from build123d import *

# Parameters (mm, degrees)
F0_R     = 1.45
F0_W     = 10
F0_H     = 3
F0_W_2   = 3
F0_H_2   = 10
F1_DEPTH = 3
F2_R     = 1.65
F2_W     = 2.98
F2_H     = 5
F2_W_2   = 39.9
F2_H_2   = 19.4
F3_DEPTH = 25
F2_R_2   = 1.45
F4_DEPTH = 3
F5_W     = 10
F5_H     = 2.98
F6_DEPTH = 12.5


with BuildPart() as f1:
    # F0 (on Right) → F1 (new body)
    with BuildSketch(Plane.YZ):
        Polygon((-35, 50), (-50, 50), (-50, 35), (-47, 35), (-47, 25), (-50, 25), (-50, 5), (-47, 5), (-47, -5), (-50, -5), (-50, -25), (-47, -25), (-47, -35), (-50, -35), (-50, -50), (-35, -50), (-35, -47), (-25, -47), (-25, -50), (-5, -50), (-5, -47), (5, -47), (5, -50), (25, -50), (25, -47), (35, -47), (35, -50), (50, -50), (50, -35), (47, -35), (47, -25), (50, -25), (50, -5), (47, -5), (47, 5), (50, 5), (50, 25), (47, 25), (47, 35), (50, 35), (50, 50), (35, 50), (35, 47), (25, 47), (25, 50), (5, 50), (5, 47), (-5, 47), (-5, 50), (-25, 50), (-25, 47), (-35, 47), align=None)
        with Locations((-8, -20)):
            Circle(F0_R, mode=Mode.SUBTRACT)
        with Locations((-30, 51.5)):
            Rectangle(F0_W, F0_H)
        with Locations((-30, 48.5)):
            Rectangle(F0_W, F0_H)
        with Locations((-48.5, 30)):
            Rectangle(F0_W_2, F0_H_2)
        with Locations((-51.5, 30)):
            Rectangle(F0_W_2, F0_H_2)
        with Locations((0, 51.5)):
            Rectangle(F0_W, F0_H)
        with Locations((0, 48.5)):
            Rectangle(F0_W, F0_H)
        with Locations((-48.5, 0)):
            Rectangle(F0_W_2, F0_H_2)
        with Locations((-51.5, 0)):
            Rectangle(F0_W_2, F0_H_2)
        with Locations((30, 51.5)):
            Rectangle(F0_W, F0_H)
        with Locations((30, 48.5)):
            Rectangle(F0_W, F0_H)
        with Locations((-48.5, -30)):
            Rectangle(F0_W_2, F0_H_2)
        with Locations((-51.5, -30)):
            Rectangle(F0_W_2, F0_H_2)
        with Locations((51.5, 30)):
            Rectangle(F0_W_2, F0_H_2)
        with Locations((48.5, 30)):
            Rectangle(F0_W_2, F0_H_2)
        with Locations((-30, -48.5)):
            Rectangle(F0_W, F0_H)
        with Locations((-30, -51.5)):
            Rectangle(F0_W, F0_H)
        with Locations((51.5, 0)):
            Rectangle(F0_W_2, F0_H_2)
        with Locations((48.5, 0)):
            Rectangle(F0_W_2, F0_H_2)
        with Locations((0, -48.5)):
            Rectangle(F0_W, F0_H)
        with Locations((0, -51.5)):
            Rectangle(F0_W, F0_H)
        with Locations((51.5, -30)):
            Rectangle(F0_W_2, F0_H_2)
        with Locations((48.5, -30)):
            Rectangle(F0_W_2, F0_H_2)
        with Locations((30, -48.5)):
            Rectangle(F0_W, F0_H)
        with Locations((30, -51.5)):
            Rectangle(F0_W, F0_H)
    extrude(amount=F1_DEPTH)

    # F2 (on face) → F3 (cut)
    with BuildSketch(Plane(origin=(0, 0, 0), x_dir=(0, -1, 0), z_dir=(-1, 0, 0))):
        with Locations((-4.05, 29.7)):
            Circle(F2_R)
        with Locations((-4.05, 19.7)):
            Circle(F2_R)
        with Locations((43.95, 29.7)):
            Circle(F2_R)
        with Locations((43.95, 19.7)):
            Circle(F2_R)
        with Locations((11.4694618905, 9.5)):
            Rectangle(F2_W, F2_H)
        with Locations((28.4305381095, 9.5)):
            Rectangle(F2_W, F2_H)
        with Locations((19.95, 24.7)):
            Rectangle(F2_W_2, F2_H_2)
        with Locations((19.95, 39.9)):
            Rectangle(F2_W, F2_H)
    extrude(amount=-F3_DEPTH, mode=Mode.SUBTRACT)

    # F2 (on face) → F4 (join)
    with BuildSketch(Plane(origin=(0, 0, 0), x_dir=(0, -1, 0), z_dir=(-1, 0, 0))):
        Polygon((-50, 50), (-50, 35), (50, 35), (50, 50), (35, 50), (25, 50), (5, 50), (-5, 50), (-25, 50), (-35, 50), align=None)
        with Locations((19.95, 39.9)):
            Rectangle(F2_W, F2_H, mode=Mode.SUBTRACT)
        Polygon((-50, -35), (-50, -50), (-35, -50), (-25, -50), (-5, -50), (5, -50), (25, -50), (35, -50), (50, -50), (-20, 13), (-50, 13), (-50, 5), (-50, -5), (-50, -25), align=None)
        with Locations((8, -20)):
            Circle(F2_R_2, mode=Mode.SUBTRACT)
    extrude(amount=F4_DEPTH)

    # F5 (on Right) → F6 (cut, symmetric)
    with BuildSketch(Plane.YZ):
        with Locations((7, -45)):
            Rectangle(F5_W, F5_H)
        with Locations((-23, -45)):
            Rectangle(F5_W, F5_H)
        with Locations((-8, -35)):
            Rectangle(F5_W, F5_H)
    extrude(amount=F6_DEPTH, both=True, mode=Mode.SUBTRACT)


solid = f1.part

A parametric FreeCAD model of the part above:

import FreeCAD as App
import Part
import Sketcher

V = App.Vector


def add_polygon(sketch, points):
    """Adds a closed chain of lines whose ends are joined by coincident constraints."""
    first, n = sketch.GeometryCount, len(points)
    for a, b in zip(points, points[1:] + points[:1]):
        sketch.addGeometry(Part.LineSegment(App.Vector(*a, 0), App.Vector(*b, 0)), False)
    for i in range(n):
        sketch.addConstraint(Sketcher.Constraint("Coincident", first + i, 2, first + (i + 1) % n, 1))

doc = App.newDocument("Part")
body = doc.addObject("PartDesign::Body", "Body")

# Sketch on YZ plane
sketch1 = body.newObject("Sketcher::SketchObject", "Sketch")
sketch1.AttachmentSupport = (doc.getObject("YZ_Plane"), [""])
sketch1.MapMode = "FlatFace"
add_polygon(sketch1, [(-35, 50), (-50, 50), (-50, 35), (-53, 35), (-53, 25), (-50, 25), (-50, 5), (-53, 5), (-53, -5), (-50, -5), (-50, -25), (-53, -25), (-53, -35), (-50, -35), (-50, -50), (-35, -50), (-35, -53), (-25, -53), (-25, -50), (-5, -50), (-5, -53), (5, -53), (5, -50), (25, -50), (25, -53), (35, -53), (35, -50), (50, -50), (50, -35), (53, -35), (53, -25), (50, -25), (50, -5), (53, -5), (53, 5), (50, 5), (50, 25), (53, 25), (53, 35), (50, 35), (50, 50), (35, 50), (35, 53), (25, 53), (25, 50), (5, 50), (5, 53), (-5, 53), (-5, 50), (-25, 50), (-25, 53), (-35, 53)])  # lines 0-51
sketch1.addGeometry(Part.Circle(V(-8, -20, 0), V(0, 0, 1), 1.45), False)  # 52
sketch1.addConstraint([
    Sketcher.Constraint("Horizontal", 0),
    Sketcher.Constraint("Vertical", 1),
    Sketcher.Constraint("Horizontal", 2),
    Sketcher.Constraint("Vertical", 3),
    Sketcher.Constraint("Horizontal", 4),
    Sketcher.Constraint("Vertical", 5),
    Sketcher.Constraint("Horizontal", 6),
    Sketcher.Constraint("Vertical", 7),
    Sketcher.Constraint("Horizontal", 8),
    Sketcher.Constraint("Vertical", 9),
    Sketcher.Constraint("Horizontal", 10),
    Sketcher.Constraint("Vertical", 11),
    Sketcher.Constraint("Horizontal", 12),
    Sketcher.Constraint("Vertical", 13),
    Sketcher.Constraint("Horizontal", 14),
    Sketcher.Constraint("Vertical", 15),
    Sketcher.Constraint("Horizontal", 16),
    Sketcher.Constraint("Vertical", 17),
    Sketcher.Constraint("Horizontal", 18),
    Sketcher.Constraint("Vertical", 19),
    Sketcher.Constraint("Horizontal", 20),
    Sketcher.Constraint("Vertical", 21),
    Sketcher.Constraint("Horizontal", 22),
    Sketcher.Constraint("Vertical", 23),
    Sketcher.Constraint("Horizontal", 24),
    Sketcher.Constraint("Vertical", 25),
    Sketcher.Constraint("Horizontal", 26),
    Sketcher.Constraint("Vertical", 27),
    Sketcher.Constraint("Horizontal", 28),
    Sketcher.Constraint("Vertical", 29),
    Sketcher.Constraint("Horizontal", 30),
    Sketcher.Constraint("Vertical", 31),
    Sketcher.Constraint("Horizontal", 32),
    Sketcher.Constraint("Vertical", 33),
    Sketcher.Constraint("Horizontal", 34),
    Sketcher.Constraint("Vertical", 35),
    Sketcher.Constraint("Horizontal", 36),
    Sketcher.Constraint("Vertical", 37),
    Sketcher.Constraint("Horizontal", 38),
    Sketcher.Constraint("Vertical", 39),
    Sketcher.Constraint("Horizontal", 40),
    Sketcher.Constraint("Vertical", 41),
    Sketcher.Constraint("Horizontal", 42),
    Sketcher.Constraint("Vertical", 43),
    Sketcher.Constraint("Horizontal", 44),
    Sketcher.Constraint("Vertical", 45),
    Sketcher.Constraint("Horizontal", 46),
    Sketcher.Constraint("Vertical", 47),
    Sketcher.Constraint("Horizontal", 48),
    Sketcher.Constraint("Vertical", 49),
    Sketcher.Constraint("Horizontal", 50),
    Sketcher.Constraint("Vertical", 51),
    Sketcher.Constraint("Symmetric", 0, 2, 26, 2, -1, 1),
    Sketcher.Constraint("Symmetric", 2, 2, 28, 2, -1, 1),
    Sketcher.Constraint("Symmetric", 4, 2, 30, 2, -1, 1),
    Sketcher.Constraint("Symmetric", 6, 2, 32, 2, -1, 1),
    Sketcher.Constraint("Symmetric", 8, 2, 34, 2, -1, 1),
    Sketcher.Constraint("Symmetric", 10, 2, 36, 2, -1, 1),
    Sketcher.Constraint("Symmetric", 12, 2, 38, 2, -1, 1),
    Sketcher.Constraint("Symmetric", 14, 2, 40, 2, -1, 1),
    Sketcher.Constraint("Symmetric", 16, 2, 42, 2, -1, 1),
    Sketcher.Constraint("Symmetric", 18, 2, 44, 2, -1, 1),
    Sketcher.Constraint("Symmetric", 20, 2, 46, 2, -1, 1),
    Sketcher.Constraint("Symmetric", 22, 2, 48, 2, -1, 1),
    Sketcher.Constraint("Symmetric", 24, 2, 50, 2, -1, 1),
    Sketcher.Constraint("Symmetric", 18, 2, 21, 2, -2),
    Sketcher.Constraint("Symmetric", 16, 2, 23, 2, -2),
    Sketcher.Constraint("Symmetric", 14, 2, 25, 2, -2),
    Sketcher.Constraint("Symmetric", 12, 2, 27, 2, -2),
    Sketcher.Constraint("Symmetric", 10, 2, 29, 2, -2),
    Sketcher.Constraint("Symmetric", 8, 2, 31, 2, -2),
    Sketcher.Constraint("Horizontal", 14, 2, 17, 2),
    Sketcher.Constraint("Horizontal", 16, 2, 19, 2),
    Sketcher.Constraint("Vertical", 1, 2, 4, 2),
    Sketcher.Constraint("Vertical", 3, 2, 6, 2),
    Sketcher.Constraint("Equal", 16, 20),
    Sketcher.Constraint("Equal", 40, 1),
    Sketcher.Constraint("Equal", 50, 3),
    Sketcher.Constraint("Equal", 48, 5),
    Sketcher.Constraint("Equal", 3, 7),
    Sketcher.Constraint("Equal", 38, 15),
    Sketcher.Constraint("Diameter", 52, 2.9),
    Sketcher.Constraint("DistanceX", 0, 2, 0, 1, 15.0),
    Sketcher.Constraint("DistanceX", 2, 2, 2, 1, 3.0),
    Sketcher.Constraint("DistanceX", 16, 1, 16, 2, 10.0),
    Sketcher.Constraint("DistanceX", 18, 1, 18, 2, 20.0),
    Sketcher.Constraint("DistanceX", 52, 3, -1, 1, 8.0),
    Sketcher.Constraint("DistanceY", 52, 3, -1, 1, 20.0),
])
pad1 = body.newObject("PartDesign::Pad", "Pad")
pad1.Profile = sketch1
pad1.Length = 3

# Sketch on YZ plane
sketch2 = body.newObject("Sketcher::SketchObject", "Sketch001")
sketch2.AttachmentSupport = (doc.getObject("YZ_Plane"), [""])
sketch2.MapMode = "FlatFace"
sketch2.addGeometry(Part.Circle(V(4.05, 29.7, 0), V(0, 0, 1), 1.65), False)  # 0
sketch2.addGeometry(Part.Circle(V(4.05, 19.7, 0), V(0, 0, 1), 1.65), False)  # 1
sketch2.addGeometry(Part.Circle(V(-43.95, 29.7, 0), V(0, 0, 1), 1.65), False)  # 2
sketch2.addGeometry(Part.Circle(V(-43.95, 19.7, 0), V(0, 0, 1), 1.65), False)  # 3
add_polygon(sketch2, [(-9.979462, 12), (-9.979462, 7), (-12.959462, 7), (-12.959462, 12)])  # lines 4-7
add_polygon(sketch2, [(-26.940538, 12), (-26.940538, 7), (-29.920538, 7), (-29.920538, 12)])  # lines 8-11
add_polygon(sketch2, [(0, 34.4), (0, 15), (-39.9, 15), (-39.9, 34.4)])  # lines 12-15
add_polygon(sketch2, [(-18.46, 42.4), (-18.46, 37.4), (-21.44, 37.4), (-21.44, 42.4)])  # lines 16-19
sketch2.addConstraint([
    Sketcher.Constraint("Vertical", 4),
    Sketcher.Constraint("Horizontal", 5),
    Sketcher.Constraint("Vertical", 6),
    Sketcher.Constraint("Horizontal", 7),
    Sketcher.Constraint("Vertical", 8),
    Sketcher.Constraint("Horizontal", 9),
    Sketcher.Constraint("Vertical", 10),
    Sketcher.Constraint("Horizontal", 11),
    Sketcher.Constraint("Vertical", 12),
    Sketcher.Constraint("Horizontal", 13),
    Sketcher.Constraint("Vertical", 14),
    Sketcher.Constraint("Horizontal", 15),
    Sketcher.Constraint("Vertical", 16),
    Sketcher.Constraint("Horizontal", 17),
    Sketcher.Constraint("Vertical", 18),
    Sketcher.Constraint("Horizontal", 19),
    Sketcher.Constraint("Equal", 0, 1),
    Sketcher.Constraint("Equal", 1, 2),
    Sketcher.Constraint("Equal", 2, 3),
    Sketcher.Constraint("PointOnObject", 12, 2, -2),
    Sketcher.Constraint("Horizontal", 0, 3, 2, 3),
    Sketcher.Constraint("Horizontal", 1, 3, 3, 3),
    Sketcher.Constraint("Horizontal", 5, 2, 8, 2),
    Sketcher.Constraint("Horizontal", 7, 2, 10, 2),
    Sketcher.Constraint("Vertical", 0, 3, 1, 3),
    Sketcher.Constraint("Vertical", 2, 3, 3, 3),
    Sketcher.Constraint("Equal", 7, 9),
    Sketcher.Constraint("Equal", 11, 17),
    Sketcher.Constraint("Equal", 10, 16),
    Sketcher.Constraint("Diameter", 0, 3.3),
    Sketcher.Constraint("DistanceY", 4, 2, 4, 1, 5.0),
    Sketcher.Constraint("DistanceX", 13, 2, 13, 1, 39.9),
    Sketcher.Constraint("DistanceY", 12, 2, 12, 1, 19.4),
    Sketcher.Constraint("DistanceY", -1, 1, 4, 2, 7.0),
    Sketcher.Constraint("DistanceY", -1, 1, 12, 2, 15.0),
    Sketcher.Constraint("DistanceY", 1, 3, 0, 3, 10.0),
    Sketcher.Constraint("DistanceX", 2, 3, 0, 3, 48.0),
    Sketcher.Constraint("DistanceY", 15, 2, 16, 2, 3.0),
    Sketcher.Constraint("DistanceX", 5, 2, 5, 1, 2.98),
    Sketcher.Constraint("DistanceY", -1, 1, 0, 3, 29.7),
    Sketcher.Constraint("DistanceX", -1, 1, 0, 3, 4.05),
    Sketcher.Constraint("DistanceX", 16, 2, -1, 1, 18.46),
    Sketcher.Constraint("DistanceX", 4, 2, -1, 1, 9.979462),
    Sketcher.Constraint("DistanceX", 8, 2, -1, 1, 26.940538),
])
pocket1 = body.newObject("PartDesign::Pocket", "Pocket")
pocket1.Profile = sketch2
pocket1.Length = 25
pocket1.Reversed = True

# Sketch on YZ plane
sketch3 = body.newObject("Sketcher::SketchObject", "Sketch002")
sketch3.AttachmentSupport = (doc.getObject("YZ_Plane"), [""])
sketch3.MapMode = "FlatFace"
add_polygon(sketch3, [(50, 50), (50, 35), (-50, 35), (-50, 50)])  # lines 0-3
add_polygon(sketch3, [(-21.44, 37.4), (-18.46, 37.4), (-18.46, 42.4), (-21.44, 42.4)])  # lines 4-7
add_polygon(sketch3, [(50, -50), (-50, -50), (20, 13), (50, 13)])  # lines 8-11
sketch3.addGeometry(Part.Circle(V(-8, -20, 0), V(0, 0, 1), 1.45), False)  # 12
sketch3.addConstraint([
    Sketcher.Constraint("Vertical", 0),
    Sketcher.Constraint("Horizontal", 1),
    Sketcher.Constraint("Vertical", 2),
    Sketcher.Constraint("Horizontal", 3),
    Sketcher.Constraint("Horizontal", 4),
    Sketcher.Constraint("Vertical", 5),
    Sketcher.Constraint("Horizontal", 6),
    Sketcher.Constraint("Vertical", 7),
    Sketcher.Constraint("Horizontal", 8),
    Sketcher.Constraint("Horizontal", 10),
    Sketcher.Constraint("Vertical", 11),
    Sketcher.Constraint("Symmetric", 3, 2, 8, 2, -1, 1),
    Sketcher.Constraint("Vertical", 2, 2, 8, 2),
    Sketcher.Constraint("Vertical", 3, 2, 10, 2),
    Sketcher.Constraint("Diameter", 12, 2.9),
    Sketcher.Constraint("DistanceX", 1, 2, 1, 1, 100.0),
    Sketcher.Constraint("DistanceX", 10, 1, 10, 2, 30.0),
    Sketcher.Constraint("DistanceY", 0, 2, 0, 1, 15.0),
    Sketcher.Constraint("DistanceY", 5, 1, 5, 2, 5.0),
    Sketcher.Constraint("DistanceY", 11, 2, 11, 1, 63.0),
    Sketcher.Constraint("DistanceX", 12, 3, -1, 1, 8.0),
    Sketcher.Constraint("DistanceY", 12, 3, -1, 1, 20.0),
    Sketcher.Constraint("DistanceY", -1, 1, 0, 2, 35.0),
    Sketcher.Constraint("DistanceX", 4, 1, 4, 2, 2.98),
    Sketcher.Constraint("DistanceY", -1, 1, 4, 2, 37.4),
    Sketcher.Constraint("DistanceX", 4, 2, -1, 1, 18.46),
])
pad2 = body.newObject("PartDesign::Pad", "Pad001")
pad2.Profile = sketch3
pad2.Length = 3
pad2.Reversed = True

# Sketch on YZ plane
sketch4 = body.newObject("Sketcher::SketchObject", "Sketch003")
sketch4.AttachmentSupport = (doc.getObject("YZ_Plane"), [""])
sketch4.MapMode = "FlatFace"
add_polygon(sketch4, [(2, -43.51), (2, -46.49), (12, -46.49), (12, -43.51)])  # lines 0-3
add_polygon(sketch4, [(-28, -43.51), (-28, -46.49), (-18, -46.49), (-18, -43.51)])  # lines 4-7
add_polygon(sketch4, [(-13, -33.51), (-13, -36.49), (-3, -36.49), (-3, -33.51)])  # lines 8-11
sketch4.addConstraint([
    Sketcher.Constraint("Vertical", 0),
    Sketcher.Constraint("Horizontal", 1),
    Sketcher.Constraint("Vertical", 2),
    Sketcher.Constraint("Horizontal", 3),
    Sketcher.Constraint("Vertical", 4),
    Sketcher.Constraint("Horizontal", 5),
    Sketcher.Constraint("Vertical", 6),
    Sketcher.Constraint("Horizontal", 7),
    Sketcher.Constraint("Vertical", 8),
    Sketcher.Constraint("Horizontal", 9),
    Sketcher.Constraint("Vertical", 10),
    Sketcher.Constraint("Horizontal", 11),
    Sketcher.Constraint("Horizontal", 1, 2, 4, 2),
    Sketcher.Constraint("Horizontal", 3, 2, 6, 2),
    Sketcher.Constraint("Equal", 3, 5),
    Sketcher.Constraint("Equal", 7, 9),
    Sketcher.Constraint("Equal", 6, 8),
    Sketcher.Constraint("DistanceX", 1, 1, 1, 2, 10.0),
    Sketcher.Constraint("DistanceX", -1, 1, 0, 2, 2.0),
    Sketcher.Constraint("DistanceX", 4, 2, -1, 1, 28.0),
    Sketcher.Constraint("DistanceX", 8, 2, -1, 1, 13.0),
    Sketcher.Constraint("DistanceY", 5, 2, 8, 2, 10.0),
    Sketcher.Constraint("DistanceY", 0, 2, 0, 1, 2.98),
    Sketcher.Constraint("DistanceY", 0, 2, -1, 1, 46.49),
])
pocket2 = body.newObject("PartDesign::Pocket", "Pocket001")
pocket2.Profile = sketch4
pocket2.Length = 25
pocket2.Midplane = True

doc.recompute()
